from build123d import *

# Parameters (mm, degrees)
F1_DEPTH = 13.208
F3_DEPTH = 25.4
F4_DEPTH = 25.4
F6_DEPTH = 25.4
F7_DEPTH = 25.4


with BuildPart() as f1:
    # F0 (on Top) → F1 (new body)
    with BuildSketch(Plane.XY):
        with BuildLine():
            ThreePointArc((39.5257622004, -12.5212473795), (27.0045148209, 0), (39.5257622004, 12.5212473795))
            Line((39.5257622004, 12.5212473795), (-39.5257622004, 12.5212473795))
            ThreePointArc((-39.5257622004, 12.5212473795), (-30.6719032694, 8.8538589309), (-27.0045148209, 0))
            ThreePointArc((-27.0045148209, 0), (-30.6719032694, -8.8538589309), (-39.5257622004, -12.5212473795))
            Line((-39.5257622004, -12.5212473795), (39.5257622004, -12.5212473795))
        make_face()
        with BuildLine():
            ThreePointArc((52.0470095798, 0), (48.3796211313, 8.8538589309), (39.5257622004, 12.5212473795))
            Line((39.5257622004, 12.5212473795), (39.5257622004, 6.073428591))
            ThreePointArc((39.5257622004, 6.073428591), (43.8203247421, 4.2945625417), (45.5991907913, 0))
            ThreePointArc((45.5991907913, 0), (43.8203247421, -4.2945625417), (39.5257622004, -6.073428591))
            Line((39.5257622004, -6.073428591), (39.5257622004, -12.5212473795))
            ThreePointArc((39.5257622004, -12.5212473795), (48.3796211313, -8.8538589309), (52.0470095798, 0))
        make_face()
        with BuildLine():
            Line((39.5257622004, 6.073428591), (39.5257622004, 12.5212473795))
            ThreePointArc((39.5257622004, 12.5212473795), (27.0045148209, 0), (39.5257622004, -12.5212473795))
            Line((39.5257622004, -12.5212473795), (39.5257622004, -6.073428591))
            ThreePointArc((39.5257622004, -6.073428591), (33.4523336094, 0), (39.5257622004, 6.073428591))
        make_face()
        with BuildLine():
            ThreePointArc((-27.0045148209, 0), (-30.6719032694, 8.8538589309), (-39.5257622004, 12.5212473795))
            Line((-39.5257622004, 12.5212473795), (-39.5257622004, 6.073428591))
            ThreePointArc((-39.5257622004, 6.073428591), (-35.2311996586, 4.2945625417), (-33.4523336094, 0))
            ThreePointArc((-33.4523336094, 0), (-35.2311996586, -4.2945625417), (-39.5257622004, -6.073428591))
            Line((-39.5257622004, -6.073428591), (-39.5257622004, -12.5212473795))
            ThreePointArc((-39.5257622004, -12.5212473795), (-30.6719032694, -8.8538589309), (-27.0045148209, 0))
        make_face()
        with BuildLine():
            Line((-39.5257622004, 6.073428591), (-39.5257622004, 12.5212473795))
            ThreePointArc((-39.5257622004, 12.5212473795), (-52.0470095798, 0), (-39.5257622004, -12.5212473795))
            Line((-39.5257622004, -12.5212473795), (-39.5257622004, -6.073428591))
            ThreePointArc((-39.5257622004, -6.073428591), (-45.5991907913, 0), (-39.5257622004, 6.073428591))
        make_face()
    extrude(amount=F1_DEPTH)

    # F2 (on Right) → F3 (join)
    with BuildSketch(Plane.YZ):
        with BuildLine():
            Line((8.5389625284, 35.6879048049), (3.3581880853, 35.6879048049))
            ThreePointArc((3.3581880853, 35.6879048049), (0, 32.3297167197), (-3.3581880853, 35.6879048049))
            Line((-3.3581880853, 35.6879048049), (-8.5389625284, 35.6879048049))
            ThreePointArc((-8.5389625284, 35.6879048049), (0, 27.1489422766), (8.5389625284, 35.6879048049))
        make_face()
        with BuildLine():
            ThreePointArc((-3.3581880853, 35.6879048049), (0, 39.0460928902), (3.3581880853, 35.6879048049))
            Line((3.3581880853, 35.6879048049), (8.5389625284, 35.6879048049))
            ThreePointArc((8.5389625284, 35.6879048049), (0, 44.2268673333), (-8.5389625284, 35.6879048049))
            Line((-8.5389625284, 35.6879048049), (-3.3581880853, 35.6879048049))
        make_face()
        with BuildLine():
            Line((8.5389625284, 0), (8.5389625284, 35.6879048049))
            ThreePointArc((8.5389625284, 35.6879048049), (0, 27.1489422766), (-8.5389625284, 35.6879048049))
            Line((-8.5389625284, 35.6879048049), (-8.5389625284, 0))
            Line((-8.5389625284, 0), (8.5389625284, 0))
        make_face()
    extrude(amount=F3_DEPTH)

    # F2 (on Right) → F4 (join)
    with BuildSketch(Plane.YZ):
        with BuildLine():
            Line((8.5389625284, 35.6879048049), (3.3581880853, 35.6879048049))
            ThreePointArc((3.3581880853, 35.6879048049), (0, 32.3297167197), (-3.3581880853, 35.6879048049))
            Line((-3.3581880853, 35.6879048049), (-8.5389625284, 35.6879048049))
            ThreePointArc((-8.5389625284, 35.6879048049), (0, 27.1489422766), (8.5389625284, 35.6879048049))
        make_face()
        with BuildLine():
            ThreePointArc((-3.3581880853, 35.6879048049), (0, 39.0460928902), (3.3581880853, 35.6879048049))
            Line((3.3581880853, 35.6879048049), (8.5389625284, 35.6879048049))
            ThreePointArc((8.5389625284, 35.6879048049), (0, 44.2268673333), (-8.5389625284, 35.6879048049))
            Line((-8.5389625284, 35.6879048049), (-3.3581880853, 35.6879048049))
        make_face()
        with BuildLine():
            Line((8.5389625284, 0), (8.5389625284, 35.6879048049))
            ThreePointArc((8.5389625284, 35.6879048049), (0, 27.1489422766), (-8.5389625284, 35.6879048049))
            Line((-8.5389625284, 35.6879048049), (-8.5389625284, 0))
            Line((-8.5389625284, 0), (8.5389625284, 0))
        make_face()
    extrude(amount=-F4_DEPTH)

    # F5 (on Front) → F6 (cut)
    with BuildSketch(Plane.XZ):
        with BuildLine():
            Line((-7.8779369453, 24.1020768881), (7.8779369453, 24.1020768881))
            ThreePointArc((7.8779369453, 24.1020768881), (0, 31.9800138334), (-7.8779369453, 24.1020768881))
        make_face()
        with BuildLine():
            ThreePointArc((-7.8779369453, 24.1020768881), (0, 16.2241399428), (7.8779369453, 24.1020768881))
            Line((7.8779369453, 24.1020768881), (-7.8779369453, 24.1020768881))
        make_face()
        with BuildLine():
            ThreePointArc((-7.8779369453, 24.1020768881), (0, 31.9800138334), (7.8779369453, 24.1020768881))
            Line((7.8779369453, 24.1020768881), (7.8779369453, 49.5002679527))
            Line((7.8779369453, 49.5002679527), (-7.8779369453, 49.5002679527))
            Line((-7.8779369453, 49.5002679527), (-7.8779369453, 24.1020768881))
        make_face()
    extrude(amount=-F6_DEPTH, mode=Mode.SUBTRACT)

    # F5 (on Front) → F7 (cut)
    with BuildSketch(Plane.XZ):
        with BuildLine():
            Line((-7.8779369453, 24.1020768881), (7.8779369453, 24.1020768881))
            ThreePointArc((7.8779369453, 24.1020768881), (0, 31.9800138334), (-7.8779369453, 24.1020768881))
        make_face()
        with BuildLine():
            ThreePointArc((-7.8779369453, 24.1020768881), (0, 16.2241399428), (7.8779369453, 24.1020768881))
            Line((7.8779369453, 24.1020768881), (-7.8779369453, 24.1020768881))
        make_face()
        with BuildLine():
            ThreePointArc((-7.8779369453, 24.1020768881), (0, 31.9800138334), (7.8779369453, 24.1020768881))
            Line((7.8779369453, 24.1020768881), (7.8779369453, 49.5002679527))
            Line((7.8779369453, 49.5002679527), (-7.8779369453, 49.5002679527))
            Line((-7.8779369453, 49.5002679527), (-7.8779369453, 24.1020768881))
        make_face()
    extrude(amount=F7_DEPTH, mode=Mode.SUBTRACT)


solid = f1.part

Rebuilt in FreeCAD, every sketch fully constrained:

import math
import FreeCAD as App
import Part
import Sketcher
Q = App.Units.Quantity

doc = App.newDocument("Part")
body = doc.addObject("PartDesign::Body", "Body")

sketch1 = body.newObject("Sketcher::SketchObject", "Sketch")
sketch1.AttachmentSupport = (doc.getObject("XY_Plane"), [""])
sketch1.MapMode = "FlatFace"
sketch1.addGeometry(Part.LineSegment(App.Vector(40, 13, 0), App.Vector(-40, 13, 0)), False)
sketch1.addGeometry(Part.ArcOfCircle(Part.Circle(App.Vector(-40, 0, 0), App.Vector(0, 0, 1), 13), math.radians(90), math.radians(270)), False)
sketch1.addGeometry(Part.LineSegment(App.Vector(-40, -13, 0), App.Vector(40, -13, 0)), False)
sketch1.addGeometry(Part.ArcOfCircle(Part.Circle(App.Vector(40, 0, 0), App.Vector(0, 0, 1), 13), math.radians(-90), math.radians(0)), False)
sketch1.addGeometry(Part.ArcOfCircle(Part.Circle(App.Vector(40, 0, 0), App.Vector(0, 0, 1), 13), math.radians(0), math.radians(90)), False)
sketch1.addGeometry(Part.ArcOfCircle(Part.Circle(App.Vector(-40, 0, 0), App.Vector(0, 0, 1), 6), math.radians(0), math.radians(90)), False)
sketch1.addGeometry(Part.ArcOfCircle(Part.Circle(App.Vector(-40, 0, 0), App.Vector(0, 0, 1), 6), math.radians(-90), math.radians(0)), False)
sketch1.addGeometry(Part.ArcOfCircle(Part.Circle(App.Vector(-40, 0, 0), App.Vector(0, 0, 1), 6), math.radians(90), math.radians(270)), False)
sketch1.addGeometry(Part.ArcOfCircle(Part.Circle(App.Vector(40, 0, 0), App.Vector(0, 0, 1), 6), math.radians(90), math.radians(270)), False)
sketch1.addGeometry(Part.ArcOfCircle(Part.Circle(App.Vector(40, 0, 0), App.Vector(0, 0, 1), 6), math.radians(0), math.radians(90)), False)
sketch1.addGeometry(Part.ArcOfCircle(Part.Circle(App.Vector(40, 0, 0), App.Vector(0, 0, 1), 6), math.radians(-90), math.radians(0)), False)
sketch1.addConstraint(Sketcher.Constraint("Tangent", 0, 2, 1, 1))
sketch1.addConstraint(Sketcher.Constraint("Tangent", 1, 2, 2, 1))
sketch1.addConstraint(Sketcher.Constraint("Tangent", 2, 2, 3, 1))
sketch1.addConstraint(Sketcher.Constraint("Tangent", 3, 2, 4, 1))
sketch1.addConstraint(Sketcher.Constraint("Tangent", 4, 2, 0, 1))
sketch1.addConstraint(Sketcher.Constraint("Tangent", 5, 1, 6, 2))
sketch1.addConstraint(Sketcher.Constraint("Tangent", 6, 1, 7, 2))
sketch1.addConstraint(Sketcher.Constraint("Tangent", 7, 1, 5, 2))
sketch1.addConstraint(Sketcher.Constraint("Tangent", 8, 1, 9, 2))
sketch1.addConstraint(Sketcher.Constraint("Tangent", 9, 1, 10, 2))
sketch1.addConstraint(Sketcher.Constraint("Tangent", 10, 1, 8, 2))
sketch1.addConstraint(Sketcher.Constraint("Horizontal", 0))
sketch1.addConstraint(Sketcher.Constraint("Horizontal", 2))
sketch1.addConstraint(Sketcher.Constraint("Coincident", 5, 3, 1, 3))
sketch1.addConstraint(Sketcher.Constraint("Coincident", 8, 3, 3, 3))
sketch1.addConstraint(Sketcher.Constraint("Equal", 1, 3))
sketch1.addConstraint(Sketcher.Constraint("Equal", 7, 8))
sketch1.addConstraint(Sketcher.Constraint("Symmetric", 1, 3, 3, 3, -1, 1))
sketch1.addConstraint(Sketcher.Constraint("PointOnObject", 3, 2, -1))
sketch1.addConstraint(Sketcher.Constraint("PointOnObject", 5, 1, -1))
sketch1.addConstraint(Sketcher.Constraint("PointOnObject", 9, 1, -1))
sketch1.addConstraint(Sketcher.Constraint("Vertical", 1, 2, 6, 1))
sketch1.addConstraint(Sketcher.Constraint("Vertical", 6, 1, 7, 1))
sketch1.addConstraint(Sketcher.Constraint("Vertical", 4, 2, 8, 1))
sketch1.addConstraint(Sketcher.Constraint("Vertical", 8, 1, 10, 1))
sketch1.addConstraint(Sketcher.Constraint("Radius", 5, Q("6.073429 mm")))
sketch1.addConstraint(Sketcher.Constraint("Radius", 1, Q("12.521247 mm")))
sketch1.addConstraint(Sketcher.Constraint("DistanceX", 0, 2, 0, 1, Q("79.051524 mm")))
pad1 = body.newObject("PartDesign::Pad", "Pad")
pad1.Profile = sketch1
pad1.Length = Q("0.52 in")

sketch2 = body.newObject("Sketcher::SketchObject", "Sketch001")
sketch2.AttachmentSupport = (doc.getObject("YZ_Plane"), [""])
sketch2.MapMode = "FlatFace"
sketch2.addGeometry(Part.ArcOfCircle(Part.Circle(App.Vector(0, 35.7, 0), App.Vector(0, 0, 1), 8.5), math.radians(0), math.radians(180)), False)
sketch2.addGeometry(Part.LineSegment(App.Vector(-8.5, 35.7, 0), App.Vector(-8.5, 0, 0)), False)
sketch2.addGeometry(Part.LineSegment(App.Vector(-8.5, 0, 0), App.Vector(8.5, 0, 0)), False)
sketch2.addGeometry(Part.LineSegment(App.Vector(8.5, 0, 0), App.Vector(8.5, 35.7, 0)), False)
sketch2.addGeometry(Part.ArcOfCircle(Part.Circle(App.Vector(0, 35.7, 0), App.Vector(0, 0, 1), 3.4), math.radians(180), math.radians(360)), False)
sketch2.addGeometry(Part.ArcOfCircle(Part.Circle(App.Vector(0, 35.7, 0), App.Vector(0, 0, 1), 3.4), math.radians(0), math.radians(180)), False)
sketch2.addConstraint(Sketcher.Constraint("Tangent", 0, 2, 1, 1))
sketch2.addConstraint(Sketcher.Constraint("Coincident", 1, 2, 2, 1))
sketch2.addConstraint(Sketcher.Constraint("Coincident", 2, 2, 3, 1))
sketch2.addConstraint(Sketcher.Constraint("Tangent", 3, 2, 0, 1))
sketch2.addConstraint(Sketcher.Constraint("Tangent", 4, 1, 5, 2))
sketch2.addConstraint(Sketcher.Constraint("Coincident", 5, 1, 4, 2))
sketch2.addConstraint(Sketcher.Constraint("Vertical", 1))
sketch2.addConstraint(Sketcher.Constraint("Horizontal", 2))
sketch2.addConstraint(Sketcher.Constraint("Vertical", 3))
sketch2.addConstraint(Sketcher.Constraint("Coincident", 4, 3, 0, 3))
sketch2.addConstraint(Sketcher.Constraint("Symmetric", 1, 2, 2, 2, -1, 1))
sketch2.addConstraint(Sketcher.Constraint("Horizontal", 3, 2, 4, 1))
sketch2.addConstraint(Sketcher.Constraint("Horizontal", 4, 1, 5, 1))
sketch2.addConstraint(Sketcher.Constraint("Radius", 4, Q("3.358188 mm")))
sketch2.addConstraint(Sketcher.Constraint("Radius", 0, Q("8.538963 mm")))
sketch2.addConstraint(Sketcher.Constraint("DistanceY", 1, 2, 1, 1, Q("35.687905 mm")))
pad2 = body.newObject("PartDesign::Pad", "Pad001")
pad2.Profile = sketch2
pad2.Length = Q("1 in")

sketch3 = body.newObject("Sketcher::SketchObject", "Sketch002")
sketch3.AttachmentSupport = (doc.getObject("YZ_Plane"), [""])
sketch3.MapMode = "FlatFace"
sketch3.addGeometry(Part.ArcOfCircle(Part.Circle(App.Vector(0, 35.7, 0), App.Vector(0, 0, 1), 8.5), math.radians(0), math.radians(180)), False)
sketch3.addGeometry(Part.LineSegment(App.Vector(-8.5, 35.7, 0), App.Vector(-8.5, 0, 0)), False)
sketch3.addGeometry(Part.LineSegment(App.Vector(-8.5, 0, 0), App.Vector(8.5, 0, 0)), False)
sketch3.addGeometry(Part.LineSegment(App.Vector(8.5, 0, 0), App.Vector(8.5, 35.7, 0)), False)
sketch3.addGeometry(Part.ArcOfCircle(Part.Circle(App.Vector(0, 35.7, 0), App.Vector(0, 0, 1), 3.4), math.radians(180), math.radians(360)), False)
sketch3.addGeometry(Part.ArcOfCircle(Part.Circle(App.Vector(0, 35.7, 0), App.Vector(0, 0, 1), 3.4), math.radians(0), math.radians(180)), False)
sketch3.addConstraint(Sketcher.Constraint("Tangent", 0, 2, 1, 1))
sketch3.addConstraint(Sketcher.Constraint("Coincident", 1, 2, 2, 1))
sketch3.addConstraint(Sketcher.Constraint("Coincident", 2, 2, 3, 1))
sketch3.addConstraint(Sketcher.Constraint("Tangent", 3, 2, 0, 1))
sketch3.addConstraint(Sketcher.Constraint("Tangent", 4, 1, 5, 2))
sketch3.addConstraint(Sketcher.Constraint("Coincident", 5, 1, 4, 2))
sketch3.addConstraint(Sketcher.Constraint("Vertical", 1))
sketch3.addConstraint(Sketcher.Constraint("Horizontal", 2))
sketch3.addConstraint(Sketcher.Constraint("Vertical", 3))
sketch3.addConstraint(Sketcher.Constraint("Coincident", 4, 3, 0, 3))
sketch3.addConstraint(Sketcher.Constraint("Symmetric", 1, 2, 2, 2, -1, 1))
sketch3.addConstraint(Sketcher.Constraint("Horizontal", 3, 2, 4, 1))
sketch3.addConstraint(Sketcher.Constraint("Horizontal", 4, 1, 5, 1))
sketch3.addConstraint(Sketcher.Constraint("Radius", 4, Q("3.358188 mm")))
sketch3.addConstraint(Sketcher.Constraint("Radius", 0, Q("8.538963 mm")))
sketch3.addConstraint(Sketcher.Constraint("DistanceY", 1, 2, 1, 1, Q("35.687905 mm")))
pad3 = body.newObject("PartDesign::Pad", "Pad002")
pad3.Profile = sketch3
pad3.Length = Q("1 in")
pad3.Reversed = True

sketch4 = body.newObject("Sketcher::SketchObject", "Sketch003")
sketch4.AttachmentSupport = (doc.getObject("XZ_Plane"), [""])
sketch4.MapMode = "FlatFace"
sketch4.addGeometry(Part.ArcOfCircle(Part.Circle(App.Vector(0, 24, 0), App.Vector(0, 0, 1), 8), math.radians(180), math.radians(360)), False)
sketch4.addGeometry(Part.LineSegment(App.Vector(8, 24, 0), App.Vector(8, 50, 0)), False)
sketch4.addGeometry(Part.LineSegment(App.Vector(8, 50, 0), App.Vector(-8, 50, 0)), False)
sketch4.addGeometry(Part.LineSegment(App.Vector(-8, 50, 0), App.Vector(-8, 24, 0)), False)
sketch4.addConstraint(Sketcher.Constraint("Tangent", 0, 2, 1, 1))
sketch4.addConstraint(Sketcher.Constraint("Coincident", 1, 2, 2, 1))
sketch4.addConstraint(Sketcher.Constraint("Coincident", 2, 2, 3, 1))
sketch4.addConstraint(Sketcher.Constraint("Tangent", 3, 2, 0, 1))
sketch4.addConstraint(Sketcher.Constraint("Vertical", 1))
sketch4.addConstraint(Sketcher.Constraint("Horizontal", 2))
sketch4.addConstraint(Sketcher.Constraint("Vertical", 3))
sketch4.addConstraint(Sketcher.Constraint("PointOnObject", 0, 3, -2))
sketch4.addConstraint(Sketcher.Constraint("Radius", 0, Q("7.877937 mm")))
sketch4.addConstraint(Sketcher.Constraint("DistanceY", 1, 1, 1, 2, Q("25.398191 mm")))
sketch4.addConstraint(Sketcher.Constraint("DistanceY", -1, 1, 0, 3, Q("24.102077 mm")))
pocket1 = body.newObject("PartDesign::Pocket", "Pocket")
pocket1.Profile = sketch4
pocket1.Length = Q("1 in")

sketch5 = body.newObject("Sketcher::SketchObject", "Sketch004")
sketch5.AttachmentSupport = (doc.getObject("XZ_Plane"), [""])
sketch5.MapMode = "FlatFace"
sketch5.addGeometry(Part.ArcOfCircle(Part.Circle(App.Vector(0, 24, 0), App.Vector(0, 0, 1), 8), math.radians(180), math.radians(360)), False)
sketch5.addGeometry(Part.LineSegment(App.Vector(8, 24, 0), App.Vector(8, 50, 0)), False)
sketch5.addGeometry(Part.LineSegment(App.Vector(8, 50, 0), App.Vector(-8, 50, 0)), False)
sketch5.addGeometry(Part.LineSegment(App.Vector(-8, 50, 0), App.Vector(-8, 24, 0)), False)
sketch5.addConstraint(Sketcher.Constraint("Tangent", 0, 2, 1, 1))
sketch5.addConstraint(Sketcher.Constraint("Coincident", 1, 2, 2, 1))
sketch5.addConstraint(Sketcher.Constraint("Coincident", 2, 2, 3, 1))
sketch5.addConstraint(Sketcher.Constraint("Tangent", 3, 2, 0, 1))
sketch5.addConstraint(Sketcher.Constraint("Vertical", 1))
sketch5.addConstraint(Sketcher.Constraint("Horizontal", 2))
sketch5.addConstraint(Sketcher.Constraint("Vertical", 3))
sketch5.addConstraint(Sketcher.Constraint("PointOnObject", 0, 3, -2))
sketch5.addConstraint(Sketcher.Constraint("Radius", 0, Q("7.877937 mm")))
sketch5.addConstraint(Sketcher.Constraint("DistanceY", 1, 1, 1, 2, Q("25.398191 mm")))
sketch5.addConstraint(Sketcher.Constraint("DistanceY", -1, 1, 0, 3, Q("24.102077 mm")))
pocket2 = body.newObject("PartDesign::Pocket", "Pocket001")
pocket2.Profile = sketch5
pocket2.Length = Q("1 in")
pocket2.Reversed = True

doc.recompute()
